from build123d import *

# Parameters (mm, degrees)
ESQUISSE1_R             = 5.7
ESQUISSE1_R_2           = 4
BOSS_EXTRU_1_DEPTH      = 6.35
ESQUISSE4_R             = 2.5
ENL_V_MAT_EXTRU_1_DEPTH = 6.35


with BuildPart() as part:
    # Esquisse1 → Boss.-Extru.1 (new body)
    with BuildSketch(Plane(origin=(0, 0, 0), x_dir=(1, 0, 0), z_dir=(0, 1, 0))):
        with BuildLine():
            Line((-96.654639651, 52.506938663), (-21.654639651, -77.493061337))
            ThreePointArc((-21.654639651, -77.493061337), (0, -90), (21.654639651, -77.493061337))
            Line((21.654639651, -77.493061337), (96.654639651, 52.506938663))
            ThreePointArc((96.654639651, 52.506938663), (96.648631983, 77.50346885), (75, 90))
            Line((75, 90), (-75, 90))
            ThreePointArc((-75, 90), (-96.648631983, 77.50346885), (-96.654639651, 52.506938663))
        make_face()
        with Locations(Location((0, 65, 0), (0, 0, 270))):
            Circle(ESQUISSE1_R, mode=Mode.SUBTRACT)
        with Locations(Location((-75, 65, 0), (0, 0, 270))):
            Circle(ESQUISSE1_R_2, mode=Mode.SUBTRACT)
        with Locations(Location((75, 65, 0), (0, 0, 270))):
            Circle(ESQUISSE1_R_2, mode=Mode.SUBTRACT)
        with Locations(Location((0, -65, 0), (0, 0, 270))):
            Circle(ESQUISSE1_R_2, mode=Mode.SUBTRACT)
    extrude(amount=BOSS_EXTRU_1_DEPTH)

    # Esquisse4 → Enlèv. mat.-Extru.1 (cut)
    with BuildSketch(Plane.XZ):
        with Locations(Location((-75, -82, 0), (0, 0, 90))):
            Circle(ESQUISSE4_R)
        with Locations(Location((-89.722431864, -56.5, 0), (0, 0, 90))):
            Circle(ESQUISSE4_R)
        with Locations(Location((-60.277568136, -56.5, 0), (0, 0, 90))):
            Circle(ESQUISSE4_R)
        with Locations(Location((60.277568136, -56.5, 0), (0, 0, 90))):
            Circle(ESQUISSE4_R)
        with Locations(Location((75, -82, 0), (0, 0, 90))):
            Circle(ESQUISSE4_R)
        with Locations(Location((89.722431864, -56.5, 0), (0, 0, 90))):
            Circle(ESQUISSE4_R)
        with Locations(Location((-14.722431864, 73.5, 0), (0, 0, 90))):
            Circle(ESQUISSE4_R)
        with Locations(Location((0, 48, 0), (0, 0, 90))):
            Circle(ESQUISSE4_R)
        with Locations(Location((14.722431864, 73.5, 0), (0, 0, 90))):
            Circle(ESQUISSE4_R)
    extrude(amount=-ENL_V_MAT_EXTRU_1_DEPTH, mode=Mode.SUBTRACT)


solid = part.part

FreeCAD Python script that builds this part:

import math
import FreeCAD as App
import Part
import Sketcher

V = App.Vector

doc = App.newDocument("Part")
params = doc.addObject("Spreadsheet::Sheet", "Params")
for row, (alias, value) in enumerate([
    ("sketch1_diameter", "8 mm"),
    ("sketch1_radius", "25 mm"),
    ("sketch1_diameter2", "11.4 mm"),
    ("sketch1_width", "150 mm"),
    ("pad1_length", "6.35 mm"),
    ("sketch2_diameter", "5 mm"),
    ("pocket1_length", "6.35 mm"),
], start=1):
    params.set(f"A{row}", alias)
    params.set(f"B{row}", "=" + value)
    params.setAlias(f"B{row}", alias)

body = doc.addObject("PartDesign::Body", "Body")

# Sketch on XZ plane
sketch1 = body.newObject("Sketcher::SketchObject", "Sketch")
sketch1.AttachmentSupport = (doc.getObject("XZ_Plane"), [""])
sketch1.MapMode = "FlatFace"
sketch1.addGeometry([
    Part.LineSegment(V(-96.7, -52.5, 0), V(-21.7, 77.5, 0)),  # 0
    Part.ArcOfCircle(Part.Circle(V(0, 65, 0), V(0, 0, 1), 25), math.radians(30), math.radians(150)),  # 1
    Part.LineSegment(V(21.7, 77.5, 0), V(96.7, -52.5, 0)),  # 2
    Part.ArcOfCircle(Part.Circle(V(75, -65, 0), V(0, 0, 1), 25), math.radians(-90), math.radians(30)),  # 3
    Part.LineSegment(V(75, -90, 0), V(-75, -90, 0)),  # 4
    Part.ArcOfCircle(Part.Circle(V(-75, -65, 0), V(0, 0, 1), 25), math.radians(150), math.radians(270)),  # 5
    Part.Circle(V(0, 65, 0), V(0, 0, 1), 4),  # 6
    Part.Circle(V(-75, -65, 0), V(0, 0, 1), 4),  # 7
    Part.Circle(V(0, -65, 0), V(0, 0, 1), 5.7),  # 8
    Part.Circle(V(75, -65, 0), V(0, 0, 1), 4),  # 9
], False)
sketch1.addConstraint([
    Sketcher.Constraint("Tangent", 0, 2, 1, 2),
    Sketcher.Constraint("Tangent", 1, 1, 2, 1),
    Sketcher.Constraint("Tangent", 2, 2, 3, 2),
    Sketcher.Constraint("Tangent", 3, 1, 4, 1),
    Sketcher.Constraint("Tangent", 4, 2, 5, 2),
    Sketcher.Constraint("Tangent", 5, 1, 0, 1),
    Sketcher.Constraint("Horizontal", 4),
    Sketcher.Constraint("Coincident", 6, 3, 1, 3),
    Sketcher.Constraint("Coincident", 7, 3, 5, 3),
    Sketcher.Constraint("Coincident", 9, 3, 3, 3),
    Sketcher.Constraint("Equal", 1, 3),
    Sketcher.Constraint("Equal", 3, 5),
    Sketcher.Constraint("Equal", 6, 7),
    Sketcher.Constraint("Equal", 7, 9),
    Sketcher.Constraint("Symmetric", 1, 3, 8, 3, -1, 1),
    Sketcher.Constraint("Symmetric", 0, 2, 1, 1, -2),
    Sketcher.Constraint("Horizontal", 7, 3, 8, 3),
    Sketcher.Constraint("Diameter", 6, 8.0),
    Sketcher.Constraint("Radius", 1, 25.0),
    Sketcher.Constraint("Diameter", 8, 11.4),
    Sketcher.Constraint("DistanceX", 4, 2, 4, 1, 150.0),
    Sketcher.Constraint("DistanceY", -1, 1, 1, 3, 65.0),
])
sketch1.setExpression("Constraints[17]", "Params.sketch1_diameter")
sketch1.setExpression("Constraints[18]", "Params.sketch1_radius")
sketch1.setExpression("Constraints[19]", "Params.sketch1_diameter2")
sketch1.setExpression("Constraints[20]", "Params.sketch1_width")
pad1 = body.newObject("PartDesign::Pad", "Pad")
pad1.Profile = sketch1
pad1.setExpression("Length", "Params.pad1_length")
pad1.Reversed = True

# Sketch on XZ plane
sketch2 = body.newObject("Sketcher::SketchObject", "Sketch001")
sketch2.AttachmentSupport = (doc.getObject("XZ_Plane"), [""])
sketch2.MapMode = "FlatFace"
sketch2.addGeometry([
    Part.Circle(V(-75, -82, 0), V(0, 0, 1), 2.5),  # 0
    Part.Circle(V(-89.7, -56.5, 0), V(0, 0, 1), 2.5),  # 1
    Part.Circle(V(-60.3, -56.5, 0), V(0, 0, 1), 2.5),  # 2
    Part.Circle(V(60.3, -56.5, 0), V(0, 0, 1), 2.5),  # 3
    Part.Circle(V(75, -82, 0), V(0, 0, 1), 2.5),  # 4
    Part.Circle(V(89.7, -56.5, 0), V(0, 0, 1), 2.5),  # 5
    Part.Circle(V(-14.7, 73.5, 0), V(0, 0, 1), 2.5),  # 6
    Part.Circle(V(0, 48, 0), V(0, 0, 1), 2.5),  # 7
    Part.Circle(V(14.7, 73.5, 0), V(0, 0, 1), 2.5),  # 8
], False)
sketch2.addConstraint([
    Sketcher.Constraint("Equal", 0, 1),
    Sketcher.Constraint("Equal", 1, 2),
    Sketcher.Constraint("Equal", 2, 3),
    Sketcher.Constraint("Equal", 3, 4),
    Sketcher.Constraint("Equal", 4, 5),
    Sketcher.Constraint("Equal", 5, 6),
    Sketcher.Constraint("Equal", 6, 7),
    Sketcher.Constraint("Equal", 7, 8),
    Sketcher.Constraint("Symmetric", 2, 3, 3, 3, -2),
    Sketcher.Constraint("Symmetric", 0, 3, 4, 3, -2),
    Sketcher.Constraint("Symmetric", 1, 3, 5, 3, -2),
    Sketcher.Constraint("Symmetric", 6, 3, 8, 3, -2),
    Sketcher.Constraint("PointOnObject", 7, 3, -2),
    Sketcher.Constraint("Horizontal", 1, 3, 2, 3),
    Sketcher.Constraint("Diameter", 0, 5.0),
    Sketcher.Constraint("DistanceX", 0, 3, -1, 1, 75.0),
    Sketcher.Constraint("DistanceY", 0, 3, -1, 1, 82.0),
    Sketcher.Constraint("DistanceY", -1, 1, 7, 3, 48.0),
    Sketcher.Constraint("DistanceX", 1, 3, 3, 3, 150.0),
    Sketcher.Constraint("DistanceY", 2, 3, 6, 3, 130.0),
    Sketcher.Constraint("DistanceX", 1, 3, 6, 3, 75.0),
    Sketcher.Constraint("DistanceY", 1, 3, -1, 1, 56.5),
    Sketcher.Constraint("DistanceX", 1, 3, -1, 1, 89.722432),
])
sketch2.setExpression("Constraints[14]", "Params.sketch2_diameter")
pocket1 = body.newObject("PartDesign::Pocket", "Pocket")
pocket1.Profile = sketch2
pocket1.setExpression("Length", "Params.pocket1_length")

doc.recompute()
